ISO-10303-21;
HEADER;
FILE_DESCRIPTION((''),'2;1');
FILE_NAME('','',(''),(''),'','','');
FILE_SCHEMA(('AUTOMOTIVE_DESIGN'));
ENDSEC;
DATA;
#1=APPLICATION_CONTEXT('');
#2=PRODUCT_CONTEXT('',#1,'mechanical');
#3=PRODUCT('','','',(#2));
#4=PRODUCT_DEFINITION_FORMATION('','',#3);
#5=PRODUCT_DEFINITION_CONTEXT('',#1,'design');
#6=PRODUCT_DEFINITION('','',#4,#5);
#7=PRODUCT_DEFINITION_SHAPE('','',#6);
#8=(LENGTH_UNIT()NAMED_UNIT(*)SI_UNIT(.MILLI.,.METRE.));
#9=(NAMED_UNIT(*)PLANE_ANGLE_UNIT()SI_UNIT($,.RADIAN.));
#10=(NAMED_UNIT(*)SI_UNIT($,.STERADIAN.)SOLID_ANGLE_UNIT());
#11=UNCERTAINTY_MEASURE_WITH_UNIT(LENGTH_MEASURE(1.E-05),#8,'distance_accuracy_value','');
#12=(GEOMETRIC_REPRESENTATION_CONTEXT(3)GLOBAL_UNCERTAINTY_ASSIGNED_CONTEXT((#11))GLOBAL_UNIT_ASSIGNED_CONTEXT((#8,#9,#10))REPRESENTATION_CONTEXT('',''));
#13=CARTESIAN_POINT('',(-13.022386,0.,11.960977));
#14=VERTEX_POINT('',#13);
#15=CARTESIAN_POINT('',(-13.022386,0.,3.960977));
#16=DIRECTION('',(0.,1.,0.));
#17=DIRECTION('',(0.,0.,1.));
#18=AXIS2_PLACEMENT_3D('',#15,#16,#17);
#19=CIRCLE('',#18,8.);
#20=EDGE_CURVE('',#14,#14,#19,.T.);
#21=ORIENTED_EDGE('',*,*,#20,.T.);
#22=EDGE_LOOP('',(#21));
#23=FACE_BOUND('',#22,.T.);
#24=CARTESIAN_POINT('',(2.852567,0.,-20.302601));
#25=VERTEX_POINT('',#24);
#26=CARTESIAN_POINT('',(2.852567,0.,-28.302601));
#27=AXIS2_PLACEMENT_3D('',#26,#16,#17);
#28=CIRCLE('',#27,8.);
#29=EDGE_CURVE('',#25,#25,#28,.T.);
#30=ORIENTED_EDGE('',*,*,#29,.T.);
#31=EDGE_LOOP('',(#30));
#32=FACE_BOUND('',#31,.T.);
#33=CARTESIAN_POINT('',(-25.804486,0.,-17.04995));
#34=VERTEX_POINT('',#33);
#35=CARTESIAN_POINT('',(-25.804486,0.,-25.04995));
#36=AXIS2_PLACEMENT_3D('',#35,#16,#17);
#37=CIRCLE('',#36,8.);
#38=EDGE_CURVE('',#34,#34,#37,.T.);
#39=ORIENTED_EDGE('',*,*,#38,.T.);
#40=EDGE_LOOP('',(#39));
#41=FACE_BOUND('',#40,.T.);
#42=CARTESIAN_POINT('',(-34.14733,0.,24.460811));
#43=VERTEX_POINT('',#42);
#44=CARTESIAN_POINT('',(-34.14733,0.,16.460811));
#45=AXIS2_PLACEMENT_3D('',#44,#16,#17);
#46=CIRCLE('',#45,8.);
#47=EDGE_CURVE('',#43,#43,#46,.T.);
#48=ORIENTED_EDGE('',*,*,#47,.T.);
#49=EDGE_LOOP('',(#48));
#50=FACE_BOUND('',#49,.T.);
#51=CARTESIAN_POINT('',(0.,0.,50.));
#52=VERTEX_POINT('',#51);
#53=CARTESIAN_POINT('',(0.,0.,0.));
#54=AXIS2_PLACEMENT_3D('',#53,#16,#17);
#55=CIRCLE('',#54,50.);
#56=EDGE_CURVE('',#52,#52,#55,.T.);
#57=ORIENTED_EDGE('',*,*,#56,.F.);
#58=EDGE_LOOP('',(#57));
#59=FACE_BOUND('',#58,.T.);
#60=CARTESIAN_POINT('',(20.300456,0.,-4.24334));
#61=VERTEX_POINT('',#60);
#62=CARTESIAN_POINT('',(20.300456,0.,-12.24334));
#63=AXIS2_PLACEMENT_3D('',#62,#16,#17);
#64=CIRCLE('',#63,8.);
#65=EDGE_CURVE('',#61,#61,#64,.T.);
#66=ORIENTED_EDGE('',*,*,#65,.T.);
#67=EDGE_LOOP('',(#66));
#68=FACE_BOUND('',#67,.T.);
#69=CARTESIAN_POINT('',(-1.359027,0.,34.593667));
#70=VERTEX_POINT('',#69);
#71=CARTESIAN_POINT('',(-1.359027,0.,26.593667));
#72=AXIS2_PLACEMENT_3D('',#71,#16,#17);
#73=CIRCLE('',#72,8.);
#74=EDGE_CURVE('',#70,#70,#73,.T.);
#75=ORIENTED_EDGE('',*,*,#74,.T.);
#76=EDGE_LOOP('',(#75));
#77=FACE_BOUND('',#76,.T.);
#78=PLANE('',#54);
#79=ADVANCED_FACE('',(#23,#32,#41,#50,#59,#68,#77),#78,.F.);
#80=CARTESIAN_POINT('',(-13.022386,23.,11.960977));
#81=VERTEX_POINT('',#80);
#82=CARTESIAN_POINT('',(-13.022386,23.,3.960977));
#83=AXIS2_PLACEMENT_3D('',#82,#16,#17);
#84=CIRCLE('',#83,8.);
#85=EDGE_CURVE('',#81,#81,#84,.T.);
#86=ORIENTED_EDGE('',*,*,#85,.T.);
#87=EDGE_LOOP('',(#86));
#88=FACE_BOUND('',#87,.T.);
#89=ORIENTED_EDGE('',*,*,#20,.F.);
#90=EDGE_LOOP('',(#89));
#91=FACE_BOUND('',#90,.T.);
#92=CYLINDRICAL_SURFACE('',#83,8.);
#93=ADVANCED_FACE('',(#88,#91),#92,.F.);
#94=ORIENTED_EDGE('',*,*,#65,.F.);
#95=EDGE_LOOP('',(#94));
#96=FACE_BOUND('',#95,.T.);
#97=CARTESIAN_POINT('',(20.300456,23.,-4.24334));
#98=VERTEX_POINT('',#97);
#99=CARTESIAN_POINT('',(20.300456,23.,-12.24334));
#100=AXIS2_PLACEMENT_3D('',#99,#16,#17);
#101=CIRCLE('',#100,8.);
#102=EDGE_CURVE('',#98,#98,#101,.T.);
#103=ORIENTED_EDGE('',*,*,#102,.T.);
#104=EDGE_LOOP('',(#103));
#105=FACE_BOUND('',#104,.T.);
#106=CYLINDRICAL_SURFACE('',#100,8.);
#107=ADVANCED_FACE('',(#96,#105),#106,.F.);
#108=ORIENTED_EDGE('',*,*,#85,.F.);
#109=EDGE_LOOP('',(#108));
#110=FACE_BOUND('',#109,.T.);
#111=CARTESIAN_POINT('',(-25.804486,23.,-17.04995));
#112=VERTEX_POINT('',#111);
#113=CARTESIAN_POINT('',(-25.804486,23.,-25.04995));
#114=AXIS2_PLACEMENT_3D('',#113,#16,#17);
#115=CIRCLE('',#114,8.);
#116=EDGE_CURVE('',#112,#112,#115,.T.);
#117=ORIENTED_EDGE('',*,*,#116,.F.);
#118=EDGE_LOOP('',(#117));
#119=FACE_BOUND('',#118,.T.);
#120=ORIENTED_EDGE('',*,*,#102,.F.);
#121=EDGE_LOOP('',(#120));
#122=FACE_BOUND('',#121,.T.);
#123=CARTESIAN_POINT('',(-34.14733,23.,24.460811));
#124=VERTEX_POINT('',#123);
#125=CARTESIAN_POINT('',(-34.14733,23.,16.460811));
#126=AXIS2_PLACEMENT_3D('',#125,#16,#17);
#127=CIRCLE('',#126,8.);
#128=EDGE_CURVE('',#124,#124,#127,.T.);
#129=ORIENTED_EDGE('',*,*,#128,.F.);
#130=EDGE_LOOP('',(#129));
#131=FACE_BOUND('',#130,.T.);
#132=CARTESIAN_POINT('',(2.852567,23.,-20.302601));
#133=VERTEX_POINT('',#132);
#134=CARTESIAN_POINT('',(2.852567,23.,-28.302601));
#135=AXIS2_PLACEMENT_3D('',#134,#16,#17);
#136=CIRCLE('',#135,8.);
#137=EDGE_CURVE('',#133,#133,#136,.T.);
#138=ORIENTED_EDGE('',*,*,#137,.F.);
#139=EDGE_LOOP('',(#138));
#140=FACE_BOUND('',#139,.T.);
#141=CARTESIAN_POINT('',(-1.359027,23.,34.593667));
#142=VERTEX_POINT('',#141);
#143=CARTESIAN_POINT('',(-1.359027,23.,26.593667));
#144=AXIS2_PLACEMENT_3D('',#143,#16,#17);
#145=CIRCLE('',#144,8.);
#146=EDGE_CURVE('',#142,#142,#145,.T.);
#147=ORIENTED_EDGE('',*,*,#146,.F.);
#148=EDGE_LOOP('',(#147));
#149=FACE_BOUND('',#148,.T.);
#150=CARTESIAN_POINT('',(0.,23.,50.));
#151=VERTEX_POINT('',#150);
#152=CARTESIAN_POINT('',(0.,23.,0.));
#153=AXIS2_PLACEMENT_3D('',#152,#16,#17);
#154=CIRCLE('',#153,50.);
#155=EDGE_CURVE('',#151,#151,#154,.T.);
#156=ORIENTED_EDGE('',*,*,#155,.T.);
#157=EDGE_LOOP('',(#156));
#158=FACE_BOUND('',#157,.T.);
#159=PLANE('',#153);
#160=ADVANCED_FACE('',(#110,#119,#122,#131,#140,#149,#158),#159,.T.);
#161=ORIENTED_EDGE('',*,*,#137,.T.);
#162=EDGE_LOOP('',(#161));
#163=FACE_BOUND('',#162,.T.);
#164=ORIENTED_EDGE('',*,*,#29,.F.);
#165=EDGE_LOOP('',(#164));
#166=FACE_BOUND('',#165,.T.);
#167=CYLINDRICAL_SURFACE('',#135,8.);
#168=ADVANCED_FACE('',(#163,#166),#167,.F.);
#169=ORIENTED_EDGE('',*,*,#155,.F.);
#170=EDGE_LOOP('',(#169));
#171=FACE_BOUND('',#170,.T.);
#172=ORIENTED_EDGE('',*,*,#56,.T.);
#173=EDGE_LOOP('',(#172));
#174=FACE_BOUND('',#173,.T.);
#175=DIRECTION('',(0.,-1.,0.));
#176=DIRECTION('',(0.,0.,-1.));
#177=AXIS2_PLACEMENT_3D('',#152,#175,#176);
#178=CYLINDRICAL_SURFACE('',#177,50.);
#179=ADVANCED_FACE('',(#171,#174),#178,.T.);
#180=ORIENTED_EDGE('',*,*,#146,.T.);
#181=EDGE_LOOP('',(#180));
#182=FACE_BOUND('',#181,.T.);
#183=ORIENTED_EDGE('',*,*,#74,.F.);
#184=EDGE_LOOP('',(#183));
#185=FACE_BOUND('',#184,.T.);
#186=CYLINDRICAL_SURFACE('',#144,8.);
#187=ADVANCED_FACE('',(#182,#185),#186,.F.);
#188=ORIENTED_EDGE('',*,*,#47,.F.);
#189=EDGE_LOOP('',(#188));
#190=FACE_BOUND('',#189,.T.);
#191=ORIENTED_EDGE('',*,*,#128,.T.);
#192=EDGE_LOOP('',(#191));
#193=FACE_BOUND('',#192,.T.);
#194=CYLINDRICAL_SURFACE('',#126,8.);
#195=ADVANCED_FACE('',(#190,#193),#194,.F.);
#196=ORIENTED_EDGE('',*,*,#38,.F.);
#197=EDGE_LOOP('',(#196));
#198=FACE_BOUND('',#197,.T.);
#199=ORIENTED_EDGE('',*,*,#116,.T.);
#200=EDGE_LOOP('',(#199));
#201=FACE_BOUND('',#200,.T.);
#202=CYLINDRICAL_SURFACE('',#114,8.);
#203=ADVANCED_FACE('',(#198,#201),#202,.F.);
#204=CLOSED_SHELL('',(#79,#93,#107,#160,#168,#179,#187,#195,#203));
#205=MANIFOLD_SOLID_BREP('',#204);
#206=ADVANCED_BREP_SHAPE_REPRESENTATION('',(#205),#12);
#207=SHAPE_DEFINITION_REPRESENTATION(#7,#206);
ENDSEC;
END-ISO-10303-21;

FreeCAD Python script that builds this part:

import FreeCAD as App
import Part
import Sketcher
from FreeCAD import Vector
Q = App.Units.Quantity

doc = App.newDocument("Part")
params = doc.addObject("Spreadsheet::Sheet", "Params")
for row, (alias, value) in enumerate([
    ("sketch1_diameter", "100 mm"),
    ("pad1_length", "23 mm"),
    ("sketch2_diameter", "16 mm"),
    ("hole_diameter", "16 mm"),
], start=1):
    params.set(f"A{row}", alias)
    params.set(f"B{row}", "=" + value)
    params.setAlias(f"B{row}", alias)

body = doc.addObject("PartDesign::Body", "Body")

sketch1 = body.newObject("Sketcher::SketchObject", "Sketch")
sketch1.AttachmentSupport = (doc.getObject("XZ_Plane"), [""])
sketch1.MapMode = "FlatFace"
sketch1.addGeometry(Part.Circle(Vector(0, 0, 0), Vector(0, 0, 1), 50), False)
sketch1.addConstraint([
    Sketcher.Constraint("Coincident", 0, 3, -1, 1),
    Sketcher.Constraint("Diameter", 0, Q("100 mm")),
])
sketch1.setExpression("Constraints[1]", "Params.sketch1_diameter")
pad1 = body.newObject("PartDesign::Pad", "Pad")
pad1.Profile = sketch1
pad1.setExpression("Length", "Params.pad1_length")
pad1.Reversed = True

sketch2 = body.newObject("Sketcher::SketchObject", "Sketch001")
sketch2.AttachmentSupport = (doc.getObject("XZ_Plane"), [""])
sketch2.MapMode = "FlatFace"
sketch2.AttachmentOffset = App.Placement(Vector(0, 0, -23), App.Rotation())
sketch2.addGeometry([
    Part.Circle(Vector(-34.14733, 16.460811, 0), Vector(0, 0, 1), 8),
    Part.Circle(Vector(-25.804486, -25.04995, 0), Vector(0, 0, 1), 8),
    Part.Circle(Vector(-1.359027, 26.593667, 0), Vector(0, 0, 1), 8),
    Part.Circle(Vector(20.300456, -12.24334, 0), Vector(0, 0, 1), 8),
    Part.Circle(Vector(-13.022386, 3.960977, 0), Vector(0, 0, 1), 8),
    Part.Circle(Vector(2.852567, -28.302601, 0), Vector(0, 0, 1), 8),
], False)
sketch2.addConstraint([
    Sketcher.Constraint("Equal", 0, 1),
    Sketcher.Constraint("Equal", 1, 2),
    Sketcher.Constraint("Equal", 2, 3),
    Sketcher.Constraint("Equal", 3, 4),
    Sketcher.Constraint("Equal", 4, 5),
    Sketcher.Constraint("Diameter", 0, Q("16 mm")),
    Sketcher.Constraint("DistanceY", 5, 3, -1, 1, Q("28.302601 mm")),
    Sketcher.Constraint("DistanceX", 1, 3, 4, 3, Q("12.7821 mm")),
    Sketcher.Constraint("DistanceX", 0, 3, -1, 1, Q("34.14733 mm")),
    Sketcher.Constraint("DistanceY", -1, 1, 0, 3, Q("16.460811 mm")),
    Sketcher.Constraint("DistanceY", 1, 3, -1, 1, Q("25.04995 mm")),
    Sketcher.Constraint("DistanceY", 3, 3, -1, 1, Q("12.24334 mm")),
    Sketcher.Constraint("DistanceX", 1, 3, 2, 3, Q("24.445459 mm")),
    Sketcher.Constraint("DistanceX", 1, 3, 3, 3, Q("46.104942 mm")),
    Sketcher.Constraint("DistanceY", 4, 3, 2, 3, Q("22.63269 mm")),
    Sketcher.Constraint("DistanceX", 5, 3, 3, 3, Q("17.447889 mm")),
    Sketcher.Constraint("DistanceY", 5, 3, 2, 3, Q("54.896268 mm")),
    Sketcher.Constraint("DistanceX", 1, 3, -1, 1, Q("25.804486 mm")),
])
sketch2.setExpression("Constraints[5]", "Params.sketch2_diameter")
doc.recompute()
hole = body.newObject("PartDesign::Hole", "Hole")
hole.Profile = sketch2
hole.ThreadType = "None"
hole.setExpression("Diameter", "Params.hole_diameter")
hole.DepthType = "ThroughAll"
hole.Reversed = True

doc.recompute()
